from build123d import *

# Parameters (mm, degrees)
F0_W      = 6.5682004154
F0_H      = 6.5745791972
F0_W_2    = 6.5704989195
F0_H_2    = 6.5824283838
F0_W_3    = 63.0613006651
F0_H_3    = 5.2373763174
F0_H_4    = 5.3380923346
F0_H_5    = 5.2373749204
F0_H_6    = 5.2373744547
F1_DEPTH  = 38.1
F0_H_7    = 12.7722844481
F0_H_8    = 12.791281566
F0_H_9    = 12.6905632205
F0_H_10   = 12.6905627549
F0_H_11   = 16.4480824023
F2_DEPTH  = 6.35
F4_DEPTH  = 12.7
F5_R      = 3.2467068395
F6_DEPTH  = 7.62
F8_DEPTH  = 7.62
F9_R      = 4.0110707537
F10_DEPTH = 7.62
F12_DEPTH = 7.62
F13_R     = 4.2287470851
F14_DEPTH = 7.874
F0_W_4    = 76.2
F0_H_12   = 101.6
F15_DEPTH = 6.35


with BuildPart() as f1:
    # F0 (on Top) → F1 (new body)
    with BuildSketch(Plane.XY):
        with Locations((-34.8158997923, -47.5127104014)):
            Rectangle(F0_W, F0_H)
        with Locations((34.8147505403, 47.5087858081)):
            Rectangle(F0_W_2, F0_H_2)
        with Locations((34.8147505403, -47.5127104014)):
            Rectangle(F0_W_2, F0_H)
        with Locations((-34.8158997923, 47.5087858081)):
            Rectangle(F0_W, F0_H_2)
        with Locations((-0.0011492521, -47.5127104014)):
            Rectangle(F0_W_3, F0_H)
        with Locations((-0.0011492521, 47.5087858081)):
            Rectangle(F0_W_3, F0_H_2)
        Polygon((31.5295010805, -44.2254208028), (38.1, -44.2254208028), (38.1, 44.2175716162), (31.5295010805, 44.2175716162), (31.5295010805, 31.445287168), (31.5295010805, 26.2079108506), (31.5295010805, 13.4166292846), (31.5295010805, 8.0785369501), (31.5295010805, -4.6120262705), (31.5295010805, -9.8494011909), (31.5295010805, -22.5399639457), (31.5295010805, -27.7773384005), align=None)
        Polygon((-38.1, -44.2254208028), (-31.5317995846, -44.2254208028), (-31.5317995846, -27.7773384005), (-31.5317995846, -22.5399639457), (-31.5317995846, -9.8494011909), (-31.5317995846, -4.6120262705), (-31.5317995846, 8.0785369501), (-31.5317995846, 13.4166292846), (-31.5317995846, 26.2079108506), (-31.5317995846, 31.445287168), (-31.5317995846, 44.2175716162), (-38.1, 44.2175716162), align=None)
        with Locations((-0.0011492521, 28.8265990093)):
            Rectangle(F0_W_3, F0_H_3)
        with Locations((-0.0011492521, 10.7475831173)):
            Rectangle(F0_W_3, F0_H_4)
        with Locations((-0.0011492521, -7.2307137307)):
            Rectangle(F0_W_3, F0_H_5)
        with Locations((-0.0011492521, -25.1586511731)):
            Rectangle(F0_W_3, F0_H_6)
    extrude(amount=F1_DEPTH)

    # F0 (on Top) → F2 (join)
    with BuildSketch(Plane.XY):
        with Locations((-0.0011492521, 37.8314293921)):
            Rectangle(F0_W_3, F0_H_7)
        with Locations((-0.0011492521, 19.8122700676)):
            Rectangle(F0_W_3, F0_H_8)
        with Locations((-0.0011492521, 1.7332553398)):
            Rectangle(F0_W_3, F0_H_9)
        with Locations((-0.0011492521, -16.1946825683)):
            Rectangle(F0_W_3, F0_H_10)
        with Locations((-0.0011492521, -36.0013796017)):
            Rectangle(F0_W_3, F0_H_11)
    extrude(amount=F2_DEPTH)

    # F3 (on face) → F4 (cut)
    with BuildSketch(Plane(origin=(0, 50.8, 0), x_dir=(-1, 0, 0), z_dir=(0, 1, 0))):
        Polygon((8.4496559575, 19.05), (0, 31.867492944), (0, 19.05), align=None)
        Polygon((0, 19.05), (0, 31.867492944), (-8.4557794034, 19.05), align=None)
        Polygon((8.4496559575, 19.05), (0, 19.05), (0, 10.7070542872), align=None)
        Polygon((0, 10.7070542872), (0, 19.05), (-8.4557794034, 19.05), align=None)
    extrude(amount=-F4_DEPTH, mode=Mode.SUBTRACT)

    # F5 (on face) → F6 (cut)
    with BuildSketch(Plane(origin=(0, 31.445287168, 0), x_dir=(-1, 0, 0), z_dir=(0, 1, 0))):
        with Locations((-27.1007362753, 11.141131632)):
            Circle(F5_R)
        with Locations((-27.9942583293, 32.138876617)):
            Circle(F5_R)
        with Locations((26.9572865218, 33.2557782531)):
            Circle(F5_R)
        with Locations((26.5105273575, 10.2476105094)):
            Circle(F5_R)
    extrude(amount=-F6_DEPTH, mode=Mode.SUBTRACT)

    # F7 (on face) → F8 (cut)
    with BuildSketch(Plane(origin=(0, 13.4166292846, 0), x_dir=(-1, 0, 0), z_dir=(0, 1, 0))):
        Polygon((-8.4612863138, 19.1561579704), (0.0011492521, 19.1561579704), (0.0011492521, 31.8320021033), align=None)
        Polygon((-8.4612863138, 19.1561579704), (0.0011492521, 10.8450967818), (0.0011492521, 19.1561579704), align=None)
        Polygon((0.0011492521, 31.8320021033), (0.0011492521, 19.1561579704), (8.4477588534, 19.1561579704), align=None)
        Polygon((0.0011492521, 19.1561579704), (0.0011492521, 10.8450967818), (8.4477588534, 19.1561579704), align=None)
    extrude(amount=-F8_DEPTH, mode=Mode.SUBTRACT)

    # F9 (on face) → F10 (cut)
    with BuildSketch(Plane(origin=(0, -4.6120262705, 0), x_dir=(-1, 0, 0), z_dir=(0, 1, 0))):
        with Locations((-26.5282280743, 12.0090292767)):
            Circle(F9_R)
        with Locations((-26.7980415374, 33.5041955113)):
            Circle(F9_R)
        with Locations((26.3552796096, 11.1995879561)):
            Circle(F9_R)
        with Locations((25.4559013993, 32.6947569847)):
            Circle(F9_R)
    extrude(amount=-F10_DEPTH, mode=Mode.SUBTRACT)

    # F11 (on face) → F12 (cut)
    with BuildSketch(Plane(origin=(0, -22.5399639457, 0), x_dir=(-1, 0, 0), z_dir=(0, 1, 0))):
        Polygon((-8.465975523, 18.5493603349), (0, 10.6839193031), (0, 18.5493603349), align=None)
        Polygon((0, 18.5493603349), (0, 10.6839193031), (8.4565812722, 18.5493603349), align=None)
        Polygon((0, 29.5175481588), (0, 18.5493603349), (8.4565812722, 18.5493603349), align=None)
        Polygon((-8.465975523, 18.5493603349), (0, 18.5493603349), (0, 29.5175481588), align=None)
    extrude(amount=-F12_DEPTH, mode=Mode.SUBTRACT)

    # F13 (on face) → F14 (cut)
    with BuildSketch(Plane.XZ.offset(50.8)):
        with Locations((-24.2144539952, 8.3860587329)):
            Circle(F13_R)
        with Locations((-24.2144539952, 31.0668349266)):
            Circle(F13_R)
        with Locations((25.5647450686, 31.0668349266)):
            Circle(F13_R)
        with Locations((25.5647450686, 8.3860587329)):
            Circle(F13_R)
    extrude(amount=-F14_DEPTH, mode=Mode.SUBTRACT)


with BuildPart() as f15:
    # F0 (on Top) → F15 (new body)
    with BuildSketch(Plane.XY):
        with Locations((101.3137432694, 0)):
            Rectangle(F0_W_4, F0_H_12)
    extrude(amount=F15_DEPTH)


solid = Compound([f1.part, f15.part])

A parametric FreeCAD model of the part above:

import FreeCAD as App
import Part
import Sketcher
from FreeCAD import Vector
Q = App.Units.Quantity

doc = App.newDocument("Part")
body = doc.addObject("PartDesign::Body", "Body")

sketch1 = body.newObject("Sketcher::SketchObject", "Sketch")
sketch1.AttachmentSupport = (doc.getObject("XY_Plane"), [""])
sketch1.MapMode = "FlatFace"
sketch1.addGeometry([
    Part.LineSegment(Vector(-38, -51, 0), Vector(38, -51, 0)),
    Part.LineSegment(Vector(38, -51, 0), Vector(38, 51, 0)),
    Part.LineSegment(Vector(38, 51, 0), Vector(-38, 51, 0)),
    Part.LineSegment(Vector(-38, 51, 0), Vector(-38, -51, 0)),
    Part.LineSegment(Vector(-32, 44, 0), Vector(32, 44, 0)),
    Part.LineSegment(Vector(32, 44, 0), Vector(32, 31, 0)),
    Part.LineSegment(Vector(32, 31, 0), Vector(-32, 31, 0)),
    Part.LineSegment(Vector(-32, 31, 0), Vector(-32, 44, 0)),
    Part.LineSegment(Vector(32, 26, 0), Vector(32, 13, 0)),
    Part.LineSegment(Vector(32, 13, 0), Vector(-32, 13, 0)),
    Part.LineSegment(Vector(-32, 13, 0), Vector(-32, 26, 0)),
    Part.LineSegment(Vector(-32, 26, 0), Vector(32, 26, 0)),
    Part.LineSegment(Vector(32, 8, 0), Vector(32, -5, 0)),
    Part.LineSegment(Vector(32, -5, 0), Vector(-32, -5, 0)),
    Part.LineSegment(Vector(-32, -5, 0), Vector(-32, 8, 0)),
    Part.LineSegment(Vector(-32, 8, 0), Vector(32, 8, 0)),
    Part.LineSegment(Vector(32, -10, 0), Vector(32, -23, 0)),
    Part.LineSegment(Vector(32, -23, 0), Vector(-32, -23, 0)),
    Part.LineSegment(Vector(-32, -23, 0), Vector(-32, -10, 0)),
    Part.LineSegment(Vector(-32, -10, 0), Vector(32, -10, 0)),
    Part.LineSegment(Vector(32, -28, 0), Vector(32, -44, 0)),
    Part.LineSegment(Vector(32, -44, 0), Vector(-32, -44, 0)),
    Part.LineSegment(Vector(-32, -44, 0), Vector(-32, -28, 0)),
    Part.LineSegment(Vector(-32, -28, 0), Vector(32, -28, 0)),
], False)
sketch1.addConstraint([
    Sketcher.Constraint("Coincident", 0, 2, 1, 1),
    Sketcher.Constraint("Coincident", 1, 2, 2, 1),
    Sketcher.Constraint("Coincident", 2, 2, 3, 1),
    Sketcher.Constraint("Coincident", 3, 2, 0, 1),
    Sketcher.Constraint("Coincident", 4, 2, 5, 1),
    Sketcher.Constraint("Coincident", 5, 2, 6, 1),
    Sketcher.Constraint("Coincident", 6, 2, 7, 1),
    Sketcher.Constraint("Coincident", 7, 2, 4, 1),
    Sketcher.Constraint("Coincident", 8, 2, 9, 1),
    Sketcher.Constraint("Coincident", 9, 2, 10, 1),
    Sketcher.Constraint("Coincident", 10, 2, 11, 1),
    Sketcher.Constraint("Coincident", 11, 2, 8, 1),
    Sketcher.Constraint("Coincident", 12, 2, 13, 1),
    Sketcher.Constraint("Coincident", 13, 2, 14, 1),
    Sketcher.Constraint("Coincident", 14, 2, 15, 1),
    Sketcher.Constraint("Coincident", 15, 2, 12, 1),
    Sketcher.Constraint("Coincident", 16, 2, 17, 1),
    Sketcher.Constraint("Coincident", 17, 2, 18, 1),
    Sketcher.Constraint("Coincident", 18, 2, 19, 1),
    Sketcher.Constraint("Coincident", 19, 2, 16, 1),
    Sketcher.Constraint("Coincident", 20, 2, 21, 1),
    Sketcher.Constraint("Coincident", 21, 2, 22, 1),
    Sketcher.Constraint("Coincident", 22, 2, 23, 1),
    Sketcher.Constraint("Coincident", 23, 2, 20, 1),
    Sketcher.Constraint("Horizontal", 0),
    Sketcher.Constraint("Vertical", 1),
    Sketcher.Constraint("Horizontal", 2),
    Sketcher.Constraint("Vertical", 3),
    Sketcher.Constraint("Horizontal", 4),
    Sketcher.Constraint("Vertical", 5),
    Sketcher.Constraint("Horizontal", 6),
    Sketcher.Constraint("Vertical", 7),
    Sketcher.Constraint("Vertical", 8),
    Sketcher.Constraint("Horizontal", 9),
    Sketcher.Constraint("Vertical", 10),
    Sketcher.Constraint("Horizontal", 11),
    Sketcher.Constraint("Vertical", 12),
    Sketcher.Constraint("Horizontal", 13),
    Sketcher.Constraint("Vertical", 14),
    Sketcher.Constraint("Horizontal", 15),
    Sketcher.Constraint("Vertical", 16),
    Sketcher.Constraint("Horizontal", 17),
    Sketcher.Constraint("Vertical", 18),
    Sketcher.Constraint("Horizontal", 19),
    Sketcher.Constraint("Vertical", 20),
    Sketcher.Constraint("Horizontal", 21),
    Sketcher.Constraint("Vertical", 22),
    Sketcher.Constraint("Horizontal", 23),
    Sketcher.Constraint("Symmetric", 0, 2, 2, 2, -1, 1),
    Sketcher.Constraint("Vertical", 5, 2, 8, 2),
    Sketcher.Constraint("Vertical", 7, 2, 9, 2),
    Sketcher.Constraint("Vertical", 11, 2, 12, 2),
    Sketcher.Constraint("Vertical", 10, 2, 13, 2),
    Sketcher.Constraint("Vertical", 15, 2, 16, 2),
    Sketcher.Constraint("Vertical", 14, 2, 17, 2),
    Sketcher.Constraint("Vertical", 19, 2, 20, 2),
    Sketcher.Constraint("Vertical", 18, 2, 21, 2),
    Sketcher.Constraint("Equal", 14, 16),
    Sketcher.Constraint("DistanceX", 0, 1, 0, 2, Q("3 in")),
    Sketcher.Constraint("DistanceY", 1, 1, 1, 2, Q("4 in")),
    Sketcher.Constraint("DistanceX", 4, 1, 4, 2, 63.061301),
    Sketcher.Constraint("DistanceY", 16, 2, -1, 1, Q("0.8874002 in")),
    Sketcher.Constraint("DistanceY", 8, 2, 8, 1, 12.791282),
    Sketcher.Constraint("DistanceX", -1, 1, 4, 2, 31.529501),
    Sketcher.Constraint("DistanceY", 18, 2, -1, 1, 9.849401),
    Sketcher.Constraint("DistanceY", 16, 2, 15, 2, 30.618501),
    Sketcher.Constraint("DistanceY", 5, 2, 5, 1, 12.772284),
    Sketcher.Constraint("DistanceY", 20, 2, 20, 1, 16.448082),
    Sketcher.Constraint("DistanceY", -1, 1, 4, 2, 44.217572),
    Sketcher.Constraint("DistanceY", -1, 1, 8, 2, 13.416629),
    Sketcher.Constraint("DistanceY", 20, 2, -1, 1, 44.225421),
])
pad1 = body.newObject("PartDesign::Pad", "Pad")
pad1.Profile = sketch1
pad1.Length = Q("1.5 in")

sketch2 = body.newObject("Sketcher::SketchObject", "Sketch001")
sketch2.AttachmentSupport = (doc.getObject("XY_Plane"), [""])
sketch2.MapMode = "FlatFace"
sketch2.addGeometry([
    Part.LineSegment(Vector(-32, 44, 0), Vector(-32, 31, 0)),
    Part.LineSegment(Vector(-32, 31, 0), Vector(32, 31, 0)),
    Part.LineSegment(Vector(32, 31, 0), Vector(32, 44, 0)),
    Part.LineSegment(Vector(32, 44, 0), Vector(-32, 44, 0)),
    Part.LineSegment(Vector(-32, 26, 0), Vector(-32, 13, 0)),
    Part.LineSegment(Vector(-32, 13, 0), Vector(32, 13, 0)),
    Part.LineSegment(Vector(32, 13, 0), Vector(32, 26, 0)),
    Part.LineSegment(Vector(32, 26, 0), Vector(-32, 26, 0)),
    Part.LineSegment(Vector(-32, 8, 0), Vector(-32, -5, 0)),
    Part.LineSegment(Vector(-32, -5, 0), Vector(32, -5, 0)),
    Part.LineSegment(Vector(32, -5, 0), Vector(32, 8, 0)),
    Part.LineSegment(Vector(32, 8, 0), Vector(-32, 8, 0)),
    Part.LineSegment(Vector(-32, -10, 0), Vector(-32, -23, 0)),
    Part.LineSegment(Vector(-32, -23, 0), Vector(32, -23, 0)),
    Part.LineSegment(Vector(32, -23, 0), Vector(32, -10, 0)),
    Part.LineSegment(Vector(32, -10, 0), Vector(-32, -10, 0)),
    Part.LineSegment(Vector(-32, -28, 0), Vector(-32, -44, 0)),
    Part.LineSegment(Vector(-32, -44, 0), Vector(32, -44, 0)),
    Part.LineSegment(Vector(32, -44, 0), Vector(32, -28, 0)),
    Part.LineSegment(Vector(32, -28, 0), Vector(-32, -28, 0)),
], False)
sketch2.addConstraint([
    Sketcher.Constraint("Coincident", 0, 2, 1, 1),
    Sketcher.Constraint("Coincident", 1, 2, 2, 1),
    Sketcher.Constraint("Coincident", 2, 2, 3, 1),
    Sketcher.Constraint("Coincident", 3, 2, 0, 1),
    Sketcher.Constraint("Coincident", 4, 2, 5, 1),
    Sketcher.Constraint("Coincident", 5, 2, 6, 1),
    Sketcher.Constraint("Coincident", 6, 2, 7, 1),
    Sketcher.Constraint("Coincident", 7, 2, 4, 1),
    Sketcher.Constraint("Coincident", 8, 2, 9, 1),
    Sketcher.Constraint("Coincident", 9, 2, 10, 1),
    Sketcher.Constraint("Coincident", 10, 2, 11, 1),
    Sketcher.Constraint("Coincident", 11, 2, 8, 1),
    Sketcher.Constraint("Coincident", 12, 2, 13, 1),
    Sketcher.Constraint("Coincident", 13, 2, 14, 1),
    Sketcher.Constraint("Coincident", 14, 2, 15, 1),
    Sketcher.Constraint("Coincident", 15, 2, 12, 1),
    Sketcher.Constraint("Coincident", 16, 2, 17, 1),
    Sketcher.Constraint("Coincident", 17, 2, 18, 1),
    Sketcher.Constraint("Coincident", 18, 2, 19, 1),
    Sketcher.Constraint("Coincident", 19, 2, 16, 1),
    Sketcher.Constraint("Vertical", 0),
    Sketcher.Constraint("Horizontal", 1),
    Sketcher.Constraint("Vertical", 2),
    Sketcher.Constraint("Horizontal", 3),
    Sketcher.Constraint("Vertical", 4),
    Sketcher.Constraint("Horizontal", 5),
    Sketcher.Constraint("Vertical", 6),
    Sketcher.Constraint("Horizontal", 7),
    Sketcher.Constraint("Vertical", 8),
    Sketcher.Constraint("Horizontal", 9),
    Sketcher.Constraint("Vertical", 10),
    Sketcher.Constraint("Horizontal", 11),
    Sketcher.Constraint("Vertical", 12),
    Sketcher.Constraint("Horizontal", 13),
    Sketcher.Constraint("Vertical", 14),
    Sketcher.Constraint("Horizontal", 15),
    Sketcher.Constraint("Vertical", 16),
    Sketcher.Constraint("Horizontal", 17),
    Sketcher.Constraint("Vertical", 18),
    Sketcher.Constraint("Horizontal", 19),
    Sketcher.Constraint("Vertical", 3, 2, 4, 2),
    Sketcher.Constraint("Vertical", 2, 2, 5, 2),
    Sketcher.Constraint("Vertical", 7, 2, 8, 2),
    Sketcher.Constraint("Vertical", 6, 2, 9, 2),
    Sketcher.Constraint("Vertical", 11, 2, 12, 2),
    Sketcher.Constraint("Vertical", 10, 2, 13, 2),
    Sketcher.Constraint("Vertical", 15, 2, 16, 2),
    Sketcher.Constraint("Vertical", 14, 2, 17, 2),
    Sketcher.Constraint("Equal", 10, 12),
    Sketcher.Constraint("DistanceX", 1, 1, 1, 2, 63.061301),
    Sketcher.Constraint("DistanceY", 12, 2, -1, 1, Q("0.8874002 in")),
    Sketcher.Constraint("DistanceY", 4, 2, 4, 1, 12.791282),
    Sketcher.Constraint("DistanceX", 0, 2, -1, 1, 31.5318),
    Sketcher.Constraint("DistanceY", 14, 2, -1, 1, 9.849401),
    Sketcher.Constraint("DistanceY", 12, 2, 11, 2, 30.618501),
    Sketcher.Constraint("DistanceY", 0, 2, 0, 1, 12.772284),
    Sketcher.Constraint("DistanceY", 16, 2, 16, 1, 16.448082),
    Sketcher.Constraint("DistanceY", -1, 1, 2, 2, 44.217572),
    Sketcher.Constraint("DistanceY", -1, 1, 4, 2, 13.416629),
    Sketcher.Constraint("DistanceY", 16, 2, -1, 1, 44.225421),
])
pad2 = body.newObject("PartDesign::Pad", "Pad001")
pad2.Profile = sketch2
pad2.Length = Q("0.25 in")

sketch3 = body.newObject("Sketcher::SketchObject", "Sketch002")
sketch3.AttachmentSupport = (doc.getObject("XZ_Plane"), [""])
sketch3.MapMode = "FlatFace"
sketch3.AttachmentOffset = App.Placement(Vector(0, 0, -2 * 25.4), App.Rotation())
sketch3.addGeometry([
    Part.LineSegment(Vector(-8, 19, 0), Vector(0, 32, 0)),
    Part.LineSegment(Vector(0, 32, 0), Vector(8, 19, 0)),
    Part.LineSegment(Vector(8, 19, 0), Vector(0, 11, 0)),
    Part.LineSegment(Vector(0, 11, 0), Vector(-8, 19, 0)),
], False)
sketch3.addConstraint([
    Sketcher.Constraint("Coincident", 0, 2, 1, 1),
    Sketcher.Constraint("Coincident", 1, 2, 2, 1),
    Sketcher.Constraint("Coincident", 2, 2, 3, 1),
    Sketcher.Constraint("Coincident", 3, 2, 0, 1),
    Sketcher.Constraint("PointOnObject", 0, 2, -2),
    Sketcher.Constraint("PointOnObject", 2, 2, -2),
    Sketcher.Constraint("Horizontal", 1, 2, 3, 2),
    Sketcher.Constraint("DistanceY", -1, 1, 1, 2, Q("0.75 in")),
    Sketcher.Constraint("Distance", 1, 15.355401),
    Sketcher.Constraint("Distance", 0, 15.35203),
    Sketcher.Constraint("Distance", 2, 11.87876),
    Sketcher.Constraint("DistanceX", -1, 1, 1, 2, 8.455779),
])
pocket1 = body.newObject("PartDesign::Pocket", "Pocket")
pocket1.Profile = sketch3
pocket1.Length = Q("0.5 in")
pocket1.Reversed = True

sketch4 = body.newObject("Sketcher::SketchObject", "Sketch003")
sketch4.AttachmentSupport = (doc.getObject("XZ_Plane"), [""])
sketch4.MapMode = "FlatFace"
sketch4.AttachmentOffset = App.Placement(Vector(0, 0, -31.445287), App.Rotation())
sketch4.addGeometry([
    Part.Circle(Vector(27.1, 11.1, 0), Vector(0, 0, 1), 3.2),
    Part.Circle(Vector(28, 32.1, 0), Vector(0, 0, 1), 3.2),
    Part.Circle(Vector(-27, 33.3, 0), Vector(0, 0, 1), 3.2),
    Part.Circle(Vector(-26.5, 10.2, 0), Vector(0, 0, 1), 3.2),
], False)
sketch4.addConstraint([
    Sketcher.Constraint("Equal", 0, 1),
    Sketcher.Constraint("Equal", 1, 2),
    Sketcher.Constraint("Equal", 2, 3),
    Sketcher.Constraint("Diameter", 0, 6.493414),
    Sketcher.Constraint("DistanceY", 1, 3, 2, 3, 1.116902),
    Sketcher.Constraint("DistanceY", -1, 1, 0, 3, 11.141132),
    Sketcher.Constraint("DistanceX", -1, 1, 1, 3, 27.994258),
    Sketcher.Constraint("DistanceY", -1, 1, 2, 3, 33.255778),
    Sketcher.Constraint("DistanceY", -1, 1, 3, 3, 10.247611),
    Sketcher.Constraint("DistanceX", 2, 3, 3, 3, 0.446759),
    Sketcher.Constraint("DistanceX", -1, 1, 0, 3, 27.100736),
    Sketcher.Constraint("DistanceX", 2, 3, -1, 1, 26.957287),
])
pocket2 = body.newObject("PartDesign::Pocket", "Pocket001")
pocket2.Profile = sketch4
pocket2.Length = Q("0.3 in")
pocket2.Reversed = True

sketch5 = body.newObject("Sketcher::SketchObject", "Sketch004")
sketch5.AttachmentSupport = (doc.getObject("XZ_Plane"), [""])
sketch5.MapMode = "FlatFace"
sketch5.AttachmentOffset = App.Placement(Vector(0, 0, -13.416629), App.Rotation())
sketch5.addGeometry([
    Part.LineSegment(Vector(0, 32, 0), Vector(8, 19, 0)),
    Part.LineSegment(Vector(8, 19, 0), Vector(0, 11, 0)),
    Part.LineSegment(Vector(0, 11, 0), Vector(-8, 19, 0)),
    Part.LineSegment(Vector(-8, 19, 0), Vector(0, 32, 0)),
], False)
sketch5.addConstraint([
    Sketcher.Constraint("Coincident", 0, 2, 1, 1),
    Sketcher.Constraint("Coincident", 1, 2, 2, 1),
    Sketcher.Constraint("Coincident", 2, 2, 3, 1),
    Sketcher.Constraint("Coincident", 3, 2, 0, 1),
    Sketcher.Constraint("Horizontal", 0, 2, 2, 2),
    Sketcher.Constraint("Vertical", 1, 2, 3, 2),
    Sketcher.Constraint("Distance", 2, 11.84985),
    Sketcher.Constraint("DistanceX", 1, 2, -1, 1, 0.001149),
    Sketcher.Constraint("DistanceX", 2, 2, -1, 1, 8.447759),
    Sketcher.Constraint("Distance", 0, 15.241058),
    Sketcher.Constraint("Distance", 1, 11.861136),
    Sketcher.Constraint("DistanceY", -1, 1, 0, 2, 19.156158),
])
pocket3 = body.newObject("PartDesign::Pocket", "Pocket002")
pocket3.Profile = sketch5
pocket3.Length = Q("0.3 in")
pocket3.Reversed = True

sketch6 = body.newObject("Sketcher::SketchObject", "Sketch005")
sketch6.AttachmentSupport = (doc.getObject("XZ_Plane"), [""])
sketch6.MapMode = "FlatFace"
sketch6.AttachmentOffset = App.Placement(Vector(0, 0, 4.612026), App.Rotation())
sketch6.addGeometry([
    Part.Circle(Vector(26.5, 12, 0), Vector(0, 0, 1), 4),
    Part.Circle(Vector(26.8, 33.5, 0), Vector(0, 0, 1), 4),
    Part.Circle(Vector(-26.4, 11.2, 0), Vector(0, 0, 1), 4),
    Part.Circle(Vector(-25.5, 32.7, 0), Vector(0, 0, 1), 4),
], False)
sketch6.addConstraint([
    Sketcher.Constraint("Equal", 0, 1),
    Sketcher.Constraint("Equal", 1, 2),
    Sketcher.Constraint("Equal", 2, 3),
    Sketcher.Constraint("Diameter", 0, 8.022142),
    Sketcher.Constraint("DistanceX", 3, 3, -1, 1, 25.455901),
    Sketcher.Constraint("DistanceX", -1, 1, 0, 3, 26.528228),
    Sketcher.Constraint("DistanceY", -1, 1, 0, 3, 12.009029),
    Sketcher.Constraint("DistanceX", -1, 1, 1, 3, 26.798042),
    Sketcher.Constraint("DistanceX", 2, 3, -1, 1, 26.35528),
    Sketcher.Constraint("DistanceY", 2, 3, 0, 3, 0.809441),
    Sketcher.Constraint("DistanceY", 2, 3, 3, 3, 21.495169),
    Sketcher.Constraint("DistanceY", 3, 3, 1, 3, 0.809439),
])
pocket4 = body.newObject("PartDesign::Pocket", "Pocket003")
pocket4.Profile = sketch6
pocket4.Length = Q("0.3 in")
pocket4.Reversed = True

sketch7 = body.newObject("Sketcher::SketchObject", "Sketch006")
sketch7.AttachmentSupport = (doc.getObject("XZ_Plane"), [""])
sketch7.MapMode = "FlatFace"
sketch7.AttachmentOffset = App.Placement(Vector(0, 0, 0.8874002 * 25.4), App.Rotation())
sketch7.addGeometry([
    Part.LineSegment(Vector(8, 19, 0), Vector(0, 11, 0)),
    Part.LineSegment(Vector(0, 11, 0), Vector(-8, 19, 0)),
    Part.LineSegment(Vector(-8, 19, 0), Vector(0, 30, 0)),
    Part.LineSegment(Vector(0, 30, 0), Vector(8, 19, 0)),
], False)
sketch7.addConstraint([
    Sketcher.Constraint("Coincident", 0, 2, 1, 1),
    Sketcher.Constraint("Coincident", 1, 2, 2, 1),
    Sketcher.Constraint("Coincident", 2, 2, 3, 1),
    Sketcher.Constraint("Coincident", 3, 2, 0, 1),
    Sketcher.Constraint("PointOnObject", 0, 2, -2),
    Sketcher.Constraint("PointOnObject", 2, 2, -2),
    Sketcher.Constraint("Horizontal", 1, 2, 3, 2),
    Sketcher.Constraint("Distance", 0, 11.55586),
    Sketcher.Constraint("Distance", 1, 11.54898),
    Sketcher.Constraint("DistanceY", -1, 1, 0, 2, 10.683919),
    Sketcher.Constraint("DistanceX", 1, 2, -1, 1, 8.456581),
    Sketcher.Constraint("DistanceY", -1, 1, 2, 2, 29.517548),
])
pocket5 = body.newObject("PartDesign::Pocket", "Pocket004")
pocket5.Profile = sketch7
pocket5.Length = Q("0.3 in")
pocket5.Reversed = True

sketch8 = body.newObject("Sketcher::SketchObject", "Sketch007")
sketch8.AttachmentSupport = (doc.getObject("XZ_Plane"), [""])
sketch8.MapMode = "FlatFace"
sketch8.AttachmentOffset = App.Placement(Vector(0, 0, 2 * 25.4), App.Rotation())
sketch8.addGeometry([
    Part.Circle(Vector(-24.2, 8.4, 0), Vector(0, 0, 1), 4.2),
    Part.Circle(Vector(-24.2, 31.1, 0), Vector(0, 0, 1), 4.2),
    Part.Circle(Vector(25.6, 31.1, 0), Vector(0, 0, 1), 4.2),
    Part.Circle(Vector(25.6, 8.4, 0), Vector(0, 0, 1), 4.2),
], False)
sketch8.addConstraint([
    Sketcher.Constraint("Equal", 0, 1),
    Sketcher.Constraint("Equal", 1, 2),
    Sketcher.Constraint("Equal", 2, 3),
    Sketcher.Constraint("Horizontal", 1, 3, 2, 3),
    Sketcher.Constraint("Horizontal", 0, 3, 3, 3),
    Sketcher.Constraint("Vertical", 0, 3, 1, 3),
    Sketcher.Constraint("Vertical", 2, 3, 3, 3),
    Sketcher.Constraint("Diameter", 0, 8.457494),
    Sketcher.Constraint("DistanceX", 1, 3, 2, 3, 49.779199),
    Sketcher.Constraint("DistanceY", -1, 1, 0, 3, 8.386059),
    Sketcher.Constraint("DistanceX", 0, 3, -1, 1, 24.214454),
    Sketcher.Constraint("DistanceY", -1, 1, 1, 3, 31.066835),
])
pocket6 = body.newObject("PartDesign::Pocket", "Pocket005")
pocket6.Profile = sketch8
pocket6.Length = Q("0.31 in")
body2 = doc.addObject("PartDesign::Body", "Body001")

sketch9 = body2.newObject("Sketcher::SketchObject", "Sketch008")
sketch9.AttachmentSupport = (doc.getObject("XY_Plane001"), [""])
sketch9.MapMode = "FlatFace"
sketch9.addGeometry([
    Part.LineSegment(Vector(63, 51, 0), Vector(63, -51, 0)),
    Part.LineSegment(Vector(63, -51, 0), Vector(139, -51, 0)),
    Part.LineSegment(Vector(139, -51, 0), Vector(139, 51, 0)),
    Part.LineSegment(Vector(139, 51, 0), Vector(63, 51, 0)),
], False)
sketch9.addConstraint([
    Sketcher.Constraint("Coincident", 0, 2, 1, 1),
    Sketcher.Constraint("Coincident", 1, 2, 2, 1),
    Sketcher.Constraint("Coincident", 2, 2, 3, 1),
    Sketcher.Constraint("Coincident", 3, 2, 0, 1),
    Sketcher.Constraint("Vertical", 0),
    Sketcher.Constraint("Horizontal", 1),
    Sketcher.Constraint("Vertical", 2),
    Sketcher.Constraint("Horizontal", 3),
    Sketcher.Constraint("DistanceX", 1, 1, 1, 2, Q("3 in")),
    Sketcher.Constraint("DistanceY", 0, 2, 0, 1, Q("4 in")),
    Sketcher.Constraint("DistanceY", 0, 2, -1, 1, Q("2 in")),
    Sketcher.Constraint("DistanceX", -1, 1, 0, 2, 63.213743),
])
pad3 = body2.newObject("PartDesign::Pad", "Pad002")
pad3.Profile = sketch9
pad3.Length = Q("0.25 in")

doc.recompute()
